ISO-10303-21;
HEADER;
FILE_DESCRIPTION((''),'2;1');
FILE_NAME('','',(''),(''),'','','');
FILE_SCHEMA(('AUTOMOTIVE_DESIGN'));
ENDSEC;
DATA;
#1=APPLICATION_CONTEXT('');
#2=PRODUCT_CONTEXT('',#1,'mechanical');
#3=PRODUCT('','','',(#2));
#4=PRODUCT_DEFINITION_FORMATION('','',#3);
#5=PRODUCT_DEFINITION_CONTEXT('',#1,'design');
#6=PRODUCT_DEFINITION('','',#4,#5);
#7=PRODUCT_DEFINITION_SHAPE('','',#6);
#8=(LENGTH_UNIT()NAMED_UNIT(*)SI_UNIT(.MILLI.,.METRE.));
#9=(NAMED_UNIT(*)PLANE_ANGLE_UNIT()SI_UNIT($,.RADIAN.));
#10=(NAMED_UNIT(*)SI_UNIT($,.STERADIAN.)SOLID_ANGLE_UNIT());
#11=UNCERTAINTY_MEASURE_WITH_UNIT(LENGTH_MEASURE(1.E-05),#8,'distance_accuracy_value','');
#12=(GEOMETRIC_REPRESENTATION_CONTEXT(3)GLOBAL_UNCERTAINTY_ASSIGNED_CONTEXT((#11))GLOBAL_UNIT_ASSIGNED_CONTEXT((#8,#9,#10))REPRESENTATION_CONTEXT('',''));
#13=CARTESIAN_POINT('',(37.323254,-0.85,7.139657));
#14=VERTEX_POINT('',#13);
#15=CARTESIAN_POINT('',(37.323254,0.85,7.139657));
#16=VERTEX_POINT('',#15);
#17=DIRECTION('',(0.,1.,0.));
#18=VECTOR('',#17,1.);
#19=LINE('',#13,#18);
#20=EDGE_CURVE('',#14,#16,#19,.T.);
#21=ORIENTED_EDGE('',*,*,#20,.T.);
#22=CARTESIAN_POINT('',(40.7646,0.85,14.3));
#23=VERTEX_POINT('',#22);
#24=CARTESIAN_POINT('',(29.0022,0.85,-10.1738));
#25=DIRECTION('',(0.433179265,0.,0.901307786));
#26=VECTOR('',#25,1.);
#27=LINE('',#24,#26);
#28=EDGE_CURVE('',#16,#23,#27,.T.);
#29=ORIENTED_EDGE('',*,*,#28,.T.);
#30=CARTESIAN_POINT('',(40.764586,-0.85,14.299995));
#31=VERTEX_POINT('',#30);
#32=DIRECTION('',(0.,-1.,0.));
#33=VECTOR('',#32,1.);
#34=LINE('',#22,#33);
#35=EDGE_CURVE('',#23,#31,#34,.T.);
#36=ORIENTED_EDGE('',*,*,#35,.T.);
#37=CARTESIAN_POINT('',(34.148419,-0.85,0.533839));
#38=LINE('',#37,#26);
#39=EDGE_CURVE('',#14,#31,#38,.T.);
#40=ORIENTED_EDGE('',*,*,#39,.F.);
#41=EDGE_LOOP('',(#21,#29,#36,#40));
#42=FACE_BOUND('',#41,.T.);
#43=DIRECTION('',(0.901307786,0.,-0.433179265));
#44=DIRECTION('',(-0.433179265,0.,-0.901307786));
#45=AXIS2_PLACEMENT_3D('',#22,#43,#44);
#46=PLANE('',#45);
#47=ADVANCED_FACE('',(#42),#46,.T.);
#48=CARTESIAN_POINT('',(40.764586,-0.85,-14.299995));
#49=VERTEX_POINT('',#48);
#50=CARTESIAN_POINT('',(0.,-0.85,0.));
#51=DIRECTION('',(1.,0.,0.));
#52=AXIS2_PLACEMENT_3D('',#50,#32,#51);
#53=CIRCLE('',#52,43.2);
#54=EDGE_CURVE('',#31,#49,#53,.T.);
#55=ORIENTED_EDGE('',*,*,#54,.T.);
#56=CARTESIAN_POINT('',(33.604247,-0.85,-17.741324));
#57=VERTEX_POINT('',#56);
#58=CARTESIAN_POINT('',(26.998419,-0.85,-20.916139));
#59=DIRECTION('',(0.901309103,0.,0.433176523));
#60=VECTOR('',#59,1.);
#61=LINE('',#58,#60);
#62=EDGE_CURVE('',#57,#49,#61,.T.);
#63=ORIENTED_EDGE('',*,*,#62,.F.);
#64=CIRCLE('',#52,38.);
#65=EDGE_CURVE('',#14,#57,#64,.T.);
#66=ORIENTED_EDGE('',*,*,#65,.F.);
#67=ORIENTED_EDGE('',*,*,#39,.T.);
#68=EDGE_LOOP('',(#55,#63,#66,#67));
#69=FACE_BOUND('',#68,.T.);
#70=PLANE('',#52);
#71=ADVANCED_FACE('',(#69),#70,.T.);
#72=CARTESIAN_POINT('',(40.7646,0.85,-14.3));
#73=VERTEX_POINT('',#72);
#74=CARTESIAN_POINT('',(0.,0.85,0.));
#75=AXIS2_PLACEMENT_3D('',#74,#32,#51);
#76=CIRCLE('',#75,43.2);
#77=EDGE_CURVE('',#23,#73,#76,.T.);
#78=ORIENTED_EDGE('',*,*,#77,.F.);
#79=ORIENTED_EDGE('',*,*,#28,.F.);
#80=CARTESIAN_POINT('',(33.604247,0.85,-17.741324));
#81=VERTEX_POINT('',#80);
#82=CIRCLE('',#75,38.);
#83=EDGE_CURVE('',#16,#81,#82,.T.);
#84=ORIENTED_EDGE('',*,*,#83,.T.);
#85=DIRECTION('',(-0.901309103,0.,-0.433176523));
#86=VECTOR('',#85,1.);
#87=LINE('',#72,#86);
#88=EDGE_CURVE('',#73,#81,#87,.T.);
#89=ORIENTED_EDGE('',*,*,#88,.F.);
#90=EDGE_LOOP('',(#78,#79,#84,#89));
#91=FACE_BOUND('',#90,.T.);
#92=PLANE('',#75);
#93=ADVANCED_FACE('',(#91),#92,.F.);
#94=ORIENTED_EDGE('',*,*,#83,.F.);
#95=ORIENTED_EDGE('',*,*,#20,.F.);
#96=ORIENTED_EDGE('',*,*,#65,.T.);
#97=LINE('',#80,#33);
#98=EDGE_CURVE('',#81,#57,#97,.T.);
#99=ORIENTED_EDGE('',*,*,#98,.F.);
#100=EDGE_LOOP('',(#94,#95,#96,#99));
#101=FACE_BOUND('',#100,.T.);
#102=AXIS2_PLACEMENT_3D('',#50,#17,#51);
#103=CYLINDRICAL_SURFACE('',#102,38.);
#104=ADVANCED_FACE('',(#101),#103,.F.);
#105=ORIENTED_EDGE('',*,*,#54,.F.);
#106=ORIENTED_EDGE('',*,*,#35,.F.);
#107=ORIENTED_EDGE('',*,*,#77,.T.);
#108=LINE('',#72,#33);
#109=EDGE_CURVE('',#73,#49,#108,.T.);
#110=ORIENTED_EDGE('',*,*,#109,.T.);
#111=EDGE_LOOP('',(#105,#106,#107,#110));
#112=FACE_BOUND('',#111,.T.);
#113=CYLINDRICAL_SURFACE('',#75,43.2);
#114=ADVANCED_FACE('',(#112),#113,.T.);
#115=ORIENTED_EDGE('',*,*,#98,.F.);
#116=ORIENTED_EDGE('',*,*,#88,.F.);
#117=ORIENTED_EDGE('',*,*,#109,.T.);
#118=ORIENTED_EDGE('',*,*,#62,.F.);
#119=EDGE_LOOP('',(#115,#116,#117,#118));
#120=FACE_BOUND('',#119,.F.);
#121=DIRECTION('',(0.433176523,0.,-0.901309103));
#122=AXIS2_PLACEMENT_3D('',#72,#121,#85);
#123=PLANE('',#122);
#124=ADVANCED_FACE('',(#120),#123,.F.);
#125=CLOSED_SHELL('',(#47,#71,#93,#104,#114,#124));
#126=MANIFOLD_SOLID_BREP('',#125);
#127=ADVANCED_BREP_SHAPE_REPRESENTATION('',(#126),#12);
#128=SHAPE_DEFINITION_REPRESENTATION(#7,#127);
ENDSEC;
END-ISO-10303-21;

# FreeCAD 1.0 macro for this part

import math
import FreeCAD as App
import Part
import Sketcher
Q = App.Units.Quantity


def add_polygon(sketch, points):
    """Adds a closed chain of lines whose ends are joined by coincident constraints."""
    first, n = sketch.GeometryCount, len(points)
    for a, b in zip(points, points[1:] + points[:1]):
        sketch.addGeometry(Part.LineSegment(App.Vector(*a, 0), App.Vector(*b, 0)), False)
    for i in range(n):
        sketch.addConstraint(Sketcher.Constraint("Coincident", first + i, 2, first + (i + 1) % n, 1))

doc = App.newDocument("Part")
body = doc.addObject("PartDesign::Body", "Body")

sketch1 = doc.addObject("Sketcher::SketchObject", "Sketch")
body.addObject(sketch1)
sketch1.AttachmentSupport = (doc.XY_Plane, [""])
sketch1.MapMode = "FlatFace"
add_polygon(sketch1, [(43.2, 0.8), (38, 0.8), (38, -0.8), (43.2, -0.8)])
sketch1.addConstraint([
    Sketcher.Constraint("Horizontal", 0),
    Sketcher.Constraint("Vertical", 1),
    Sketcher.Constraint("Horizontal", 2),
    Sketcher.Constraint("Vertical", 3),
    Sketcher.Constraint("DistanceY", 1, 2, 1, 1, Q("1.7 mm")),
    Sketcher.Constraint("DistanceX", 0, 2, 0, 1, Q("5.2 mm")),
    Sketcher.Constraint("DistanceX", -1, 1, 0, 2, Q("38 mm")),
    Sketcher.Constraint("DistanceY", -1, 1, 0, 2, Q("0.85 mm")),
])
revolution = doc.addObject("PartDesign::Revolution", "Revolution")
body.addObject(revolution)
revolution.Profile = sketch1
revolution.ReferenceAxis = (sketch1, ["V_Axis"])
revolution.Angle = 360

sketch2 = doc.addObject("Sketcher::SketchObject", "Sketch001")
body.addObject(sketch2)
sketch2.AttachmentSupport = (doc.XZ_Plane, [""])
sketch2.MapMode = "FlatFace"
sketch2.AttachmentOffset = App.Placement(App.Vector(0, 0, -0.85), App.Rotation())
sketch2.addGeometry([
    Part.LineSegment(App.Vector(41, -14, 0), App.Vector(34, -18, 0)),
    Part.ArcOfCircle(Part.Circle(App.Vector(0, 0, 0), App.Vector(0, 0, 1), 38), math.radians(-27.83), math.radians(-19.33)),
    Part.LineSegment(App.Vector(36, -13, 0), App.Vector(29, -10, 0)),
    Part.LineSegment(App.Vector(29, -10, 0), App.Vector(41, 14, 0)),
    Part.ArcOfCircle(Part.Circle(App.Vector(0, 0, 0), App.Vector(0, 0, 1), 43), math.radians(-19), math.radians(19)),
], False)
sketch2.addConstraint([
    Sketcher.Constraint("Coincident", 0, 2, 1, 1),
    Sketcher.Constraint("Coincident", 1, 2, 2, 1),
    Sketcher.Constraint("Coincident", 2, 2, 3, 1),
    Sketcher.Constraint("Coincident", 3, 2, 4, 2),
    Sketcher.Constraint("Coincident", 4, 1, 0, 1),
    Sketcher.Constraint("Coincident", 1, 3, -1, 1),
    Sketcher.Constraint("Coincident", 4, 3, -1, 1),
    Sketcher.Constraint("Vertical", 3, 2, 4, 1),
    Sketcher.Constraint("Radius", 1, Q("38 mm")),
    Sketcher.Constraint("Radius", 4, Q("43.2 mm")),
    Sketcher.Constraint("DistanceY", 4, 1, 3, 2, Q("28.6 mm")),
    Sketcher.Constraint("Angle", 0, Q("-154.3307 deg")),
    Sketcher.Constraint("Angle", 2, Q("160.6694 deg")),
    Sketcher.Constraint("Angle", 3, Q("64.3305 deg")),
    Sketcher.Constraint("Distance", 2, Q("7.265 mm")),
])
pocket1 = doc.addObject("PartDesign::Pocket", "Pocket")
body.addObject(pocket1)
pocket1.Profile = sketch2
pocket1.Type = "ThroughAll"
pocket1.Reversed = True

doc.recompute()
